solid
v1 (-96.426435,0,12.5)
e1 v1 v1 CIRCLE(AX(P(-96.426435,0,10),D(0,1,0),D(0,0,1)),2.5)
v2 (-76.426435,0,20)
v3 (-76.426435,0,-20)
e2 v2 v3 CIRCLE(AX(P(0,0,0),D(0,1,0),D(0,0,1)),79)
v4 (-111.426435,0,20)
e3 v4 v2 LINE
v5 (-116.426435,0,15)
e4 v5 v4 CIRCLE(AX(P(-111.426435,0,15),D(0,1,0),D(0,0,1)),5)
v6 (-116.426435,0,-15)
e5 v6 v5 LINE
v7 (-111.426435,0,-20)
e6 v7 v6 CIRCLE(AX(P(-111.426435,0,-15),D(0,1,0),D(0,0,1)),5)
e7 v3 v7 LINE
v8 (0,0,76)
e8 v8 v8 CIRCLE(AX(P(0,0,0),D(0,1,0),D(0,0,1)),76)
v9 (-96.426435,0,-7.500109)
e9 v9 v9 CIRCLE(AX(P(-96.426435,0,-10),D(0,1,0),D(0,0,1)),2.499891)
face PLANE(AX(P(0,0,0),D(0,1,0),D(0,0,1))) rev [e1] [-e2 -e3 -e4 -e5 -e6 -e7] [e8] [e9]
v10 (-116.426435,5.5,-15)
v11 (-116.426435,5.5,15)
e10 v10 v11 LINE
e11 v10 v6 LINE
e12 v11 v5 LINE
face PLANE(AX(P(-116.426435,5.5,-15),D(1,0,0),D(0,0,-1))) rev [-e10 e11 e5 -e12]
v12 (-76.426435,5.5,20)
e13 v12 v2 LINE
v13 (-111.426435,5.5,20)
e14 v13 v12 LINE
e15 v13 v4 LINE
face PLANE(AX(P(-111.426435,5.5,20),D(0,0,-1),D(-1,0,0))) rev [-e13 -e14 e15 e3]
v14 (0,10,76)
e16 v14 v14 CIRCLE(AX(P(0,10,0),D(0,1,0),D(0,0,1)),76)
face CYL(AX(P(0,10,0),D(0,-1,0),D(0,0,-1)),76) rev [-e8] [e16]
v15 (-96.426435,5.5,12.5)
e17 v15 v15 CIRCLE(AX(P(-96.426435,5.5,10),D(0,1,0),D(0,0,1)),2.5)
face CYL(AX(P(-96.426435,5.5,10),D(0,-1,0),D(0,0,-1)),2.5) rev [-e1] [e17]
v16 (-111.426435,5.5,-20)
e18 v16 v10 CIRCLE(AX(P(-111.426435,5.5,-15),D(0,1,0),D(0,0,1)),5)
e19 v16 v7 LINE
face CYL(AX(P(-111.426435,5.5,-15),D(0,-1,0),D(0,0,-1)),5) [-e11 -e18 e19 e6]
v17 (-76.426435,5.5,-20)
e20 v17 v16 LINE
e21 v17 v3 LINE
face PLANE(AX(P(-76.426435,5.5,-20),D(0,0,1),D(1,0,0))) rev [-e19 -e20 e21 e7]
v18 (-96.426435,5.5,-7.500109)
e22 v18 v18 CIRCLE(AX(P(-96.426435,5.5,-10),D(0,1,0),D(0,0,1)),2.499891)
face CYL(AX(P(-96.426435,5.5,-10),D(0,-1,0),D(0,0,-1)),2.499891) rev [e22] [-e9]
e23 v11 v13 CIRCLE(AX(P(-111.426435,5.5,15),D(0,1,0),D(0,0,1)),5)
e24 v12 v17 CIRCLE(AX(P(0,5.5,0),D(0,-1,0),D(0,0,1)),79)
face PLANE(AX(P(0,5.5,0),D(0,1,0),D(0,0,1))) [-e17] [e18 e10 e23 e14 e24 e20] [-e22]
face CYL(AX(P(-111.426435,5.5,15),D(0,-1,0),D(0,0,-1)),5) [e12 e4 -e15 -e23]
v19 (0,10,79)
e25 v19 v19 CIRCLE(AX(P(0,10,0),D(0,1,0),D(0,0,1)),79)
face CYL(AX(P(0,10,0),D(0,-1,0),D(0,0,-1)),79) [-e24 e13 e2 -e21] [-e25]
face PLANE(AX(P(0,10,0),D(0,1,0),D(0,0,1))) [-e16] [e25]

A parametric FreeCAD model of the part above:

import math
import FreeCAD as App
import Part
import Sketcher
Q = App.Units.Quantity

doc = App.newDocument("Part")
body = doc.addObject("PartDesign::Body", "Body")

# Sketch on XZ plane
sketch1 = body.newObject("Sketcher::SketchObject", "Sketch")
sketch1.AttachmentSupport = (doc.getObject("XZ_Plane"), [""])
sketch1.MapMode = "FlatFace"
sketch1.addGeometry([
    Part.Circle(App.Vector(0, 0, 0), App.Vector(0, 0, 1), 79),
    Part.Circle(App.Vector(0, 0, 0), App.Vector(0, 0, 1), 76),
], False)
sketch1.addConstraint([
    Sketcher.Constraint("Coincident", 0, 3, -1, 1),
    Sketcher.Constraint("Coincident", 1, 3, -1, 1),
    Sketcher.Constraint("Diameter", 0, Q("158 mm")),
    Sketcher.Constraint("Diameter", 1, Q("152 mm")),
])
pad1 = body.newObject("PartDesign::Pad", "Pad")
pad1.Profile = sketch1
pad1.Length = 10
pad1.Reversed = True

# Sketch on XZ plane
sketch2 = body.newObject("Sketcher::SketchObject", "Sketch001")
sketch2.AttachmentSupport = (doc.getObject("XZ_Plane"), [""])
sketch2.MapMode = "FlatFace"
sketch2.addGeometry([
    Part.LineSegment(App.Vector(-76.4, -20, 0), App.Vector(-111.4, -20, 0)),  # 0
    Part.ArcOfCircle(Part.Circle(App.Vector(-111.4, -15, 0), App.Vector(0, 0, 1), 5), math.radians(180), math.radians(270)),  # 1
    Part.LineSegment(App.Vector(-116.4, -15, 0), App.Vector(-116.4, 15, 0)),  # 2
    Part.ArcOfCircle(Part.Circle(App.Vector(-111.4, 15, 0), App.Vector(0, 0, 1), 5), math.radians(90), math.radians(180)),  # 3
    Part.LineSegment(App.Vector(-111.4, 20, 0), App.Vector(-76.4, 20, 0)),  # 4
    Part.ArcOfCircle(Part.Circle(App.Vector(0, 0, 0), App.Vector(0, 0, 1), 79), math.radians(165), math.radians(195)),  # 5
    Part.Circle(App.Vector(-96.4, 10, 0), App.Vector(0, 0, 1), 2.5),  # 6
    Part.Circle(App.Vector(-96.4, -10, 0), App.Vector(0, 0, 1), 2.5),  # 7
], False)
sketch2.addConstraint([
    Sketcher.Constraint("Tangent", 0, 2, 1, 2),
    Sketcher.Constraint("Tangent", 1, 1, 2, 1),
    Sketcher.Constraint("Tangent", 2, 2, 3, 2),
    Sketcher.Constraint("Tangent", 3, 1, 4, 1),
    Sketcher.Constraint("Coincident", 4, 2, 5, 1),
    Sketcher.Constraint("Coincident", 5, 2, 0, 1),
    Sketcher.Constraint("Horizontal", 0),
    Sketcher.Constraint("Vertical", 2),
    Sketcher.Constraint("Horizontal", 4),
    Sketcher.Constraint("Coincident", 5, 3, -1, 1),
    Sketcher.Constraint("Equal", 1, 3),
    Sketcher.Constraint("Symmetric", 6, 3, 7, 3, -1),
    Sketcher.Constraint("Vertical", 4, 2, 5, 2),
    Sketcher.Constraint("Diameter", 6, Q("5 mm")),
    Sketcher.Constraint("Radius", 1, Q("5 mm")),
    Sketcher.Constraint("Radius", 5, Q("79 mm")),
    Sketcher.Constraint("DistanceX", 0, 2, 0, 1, Q("35 mm")),
    Sketcher.Constraint("DistanceY", 2, 1, 2, 2, Q("30 mm")),
    Sketcher.Constraint("DistanceY", -1, 1, 6, 3, Q("10 mm")),
    Sketcher.Constraint("DistanceX", 3, 3, 6, 3, Q("15 mm")),
    Sketcher.Constraint("Diameter", 7, Q("4.999782 mm")),
])
pad2 = body.newObject("PartDesign::Pad", "Pad001")
pad2.Profile = sketch2
pad2.Length = 5.5
pad2.Reversed = True

doc.recompute()
